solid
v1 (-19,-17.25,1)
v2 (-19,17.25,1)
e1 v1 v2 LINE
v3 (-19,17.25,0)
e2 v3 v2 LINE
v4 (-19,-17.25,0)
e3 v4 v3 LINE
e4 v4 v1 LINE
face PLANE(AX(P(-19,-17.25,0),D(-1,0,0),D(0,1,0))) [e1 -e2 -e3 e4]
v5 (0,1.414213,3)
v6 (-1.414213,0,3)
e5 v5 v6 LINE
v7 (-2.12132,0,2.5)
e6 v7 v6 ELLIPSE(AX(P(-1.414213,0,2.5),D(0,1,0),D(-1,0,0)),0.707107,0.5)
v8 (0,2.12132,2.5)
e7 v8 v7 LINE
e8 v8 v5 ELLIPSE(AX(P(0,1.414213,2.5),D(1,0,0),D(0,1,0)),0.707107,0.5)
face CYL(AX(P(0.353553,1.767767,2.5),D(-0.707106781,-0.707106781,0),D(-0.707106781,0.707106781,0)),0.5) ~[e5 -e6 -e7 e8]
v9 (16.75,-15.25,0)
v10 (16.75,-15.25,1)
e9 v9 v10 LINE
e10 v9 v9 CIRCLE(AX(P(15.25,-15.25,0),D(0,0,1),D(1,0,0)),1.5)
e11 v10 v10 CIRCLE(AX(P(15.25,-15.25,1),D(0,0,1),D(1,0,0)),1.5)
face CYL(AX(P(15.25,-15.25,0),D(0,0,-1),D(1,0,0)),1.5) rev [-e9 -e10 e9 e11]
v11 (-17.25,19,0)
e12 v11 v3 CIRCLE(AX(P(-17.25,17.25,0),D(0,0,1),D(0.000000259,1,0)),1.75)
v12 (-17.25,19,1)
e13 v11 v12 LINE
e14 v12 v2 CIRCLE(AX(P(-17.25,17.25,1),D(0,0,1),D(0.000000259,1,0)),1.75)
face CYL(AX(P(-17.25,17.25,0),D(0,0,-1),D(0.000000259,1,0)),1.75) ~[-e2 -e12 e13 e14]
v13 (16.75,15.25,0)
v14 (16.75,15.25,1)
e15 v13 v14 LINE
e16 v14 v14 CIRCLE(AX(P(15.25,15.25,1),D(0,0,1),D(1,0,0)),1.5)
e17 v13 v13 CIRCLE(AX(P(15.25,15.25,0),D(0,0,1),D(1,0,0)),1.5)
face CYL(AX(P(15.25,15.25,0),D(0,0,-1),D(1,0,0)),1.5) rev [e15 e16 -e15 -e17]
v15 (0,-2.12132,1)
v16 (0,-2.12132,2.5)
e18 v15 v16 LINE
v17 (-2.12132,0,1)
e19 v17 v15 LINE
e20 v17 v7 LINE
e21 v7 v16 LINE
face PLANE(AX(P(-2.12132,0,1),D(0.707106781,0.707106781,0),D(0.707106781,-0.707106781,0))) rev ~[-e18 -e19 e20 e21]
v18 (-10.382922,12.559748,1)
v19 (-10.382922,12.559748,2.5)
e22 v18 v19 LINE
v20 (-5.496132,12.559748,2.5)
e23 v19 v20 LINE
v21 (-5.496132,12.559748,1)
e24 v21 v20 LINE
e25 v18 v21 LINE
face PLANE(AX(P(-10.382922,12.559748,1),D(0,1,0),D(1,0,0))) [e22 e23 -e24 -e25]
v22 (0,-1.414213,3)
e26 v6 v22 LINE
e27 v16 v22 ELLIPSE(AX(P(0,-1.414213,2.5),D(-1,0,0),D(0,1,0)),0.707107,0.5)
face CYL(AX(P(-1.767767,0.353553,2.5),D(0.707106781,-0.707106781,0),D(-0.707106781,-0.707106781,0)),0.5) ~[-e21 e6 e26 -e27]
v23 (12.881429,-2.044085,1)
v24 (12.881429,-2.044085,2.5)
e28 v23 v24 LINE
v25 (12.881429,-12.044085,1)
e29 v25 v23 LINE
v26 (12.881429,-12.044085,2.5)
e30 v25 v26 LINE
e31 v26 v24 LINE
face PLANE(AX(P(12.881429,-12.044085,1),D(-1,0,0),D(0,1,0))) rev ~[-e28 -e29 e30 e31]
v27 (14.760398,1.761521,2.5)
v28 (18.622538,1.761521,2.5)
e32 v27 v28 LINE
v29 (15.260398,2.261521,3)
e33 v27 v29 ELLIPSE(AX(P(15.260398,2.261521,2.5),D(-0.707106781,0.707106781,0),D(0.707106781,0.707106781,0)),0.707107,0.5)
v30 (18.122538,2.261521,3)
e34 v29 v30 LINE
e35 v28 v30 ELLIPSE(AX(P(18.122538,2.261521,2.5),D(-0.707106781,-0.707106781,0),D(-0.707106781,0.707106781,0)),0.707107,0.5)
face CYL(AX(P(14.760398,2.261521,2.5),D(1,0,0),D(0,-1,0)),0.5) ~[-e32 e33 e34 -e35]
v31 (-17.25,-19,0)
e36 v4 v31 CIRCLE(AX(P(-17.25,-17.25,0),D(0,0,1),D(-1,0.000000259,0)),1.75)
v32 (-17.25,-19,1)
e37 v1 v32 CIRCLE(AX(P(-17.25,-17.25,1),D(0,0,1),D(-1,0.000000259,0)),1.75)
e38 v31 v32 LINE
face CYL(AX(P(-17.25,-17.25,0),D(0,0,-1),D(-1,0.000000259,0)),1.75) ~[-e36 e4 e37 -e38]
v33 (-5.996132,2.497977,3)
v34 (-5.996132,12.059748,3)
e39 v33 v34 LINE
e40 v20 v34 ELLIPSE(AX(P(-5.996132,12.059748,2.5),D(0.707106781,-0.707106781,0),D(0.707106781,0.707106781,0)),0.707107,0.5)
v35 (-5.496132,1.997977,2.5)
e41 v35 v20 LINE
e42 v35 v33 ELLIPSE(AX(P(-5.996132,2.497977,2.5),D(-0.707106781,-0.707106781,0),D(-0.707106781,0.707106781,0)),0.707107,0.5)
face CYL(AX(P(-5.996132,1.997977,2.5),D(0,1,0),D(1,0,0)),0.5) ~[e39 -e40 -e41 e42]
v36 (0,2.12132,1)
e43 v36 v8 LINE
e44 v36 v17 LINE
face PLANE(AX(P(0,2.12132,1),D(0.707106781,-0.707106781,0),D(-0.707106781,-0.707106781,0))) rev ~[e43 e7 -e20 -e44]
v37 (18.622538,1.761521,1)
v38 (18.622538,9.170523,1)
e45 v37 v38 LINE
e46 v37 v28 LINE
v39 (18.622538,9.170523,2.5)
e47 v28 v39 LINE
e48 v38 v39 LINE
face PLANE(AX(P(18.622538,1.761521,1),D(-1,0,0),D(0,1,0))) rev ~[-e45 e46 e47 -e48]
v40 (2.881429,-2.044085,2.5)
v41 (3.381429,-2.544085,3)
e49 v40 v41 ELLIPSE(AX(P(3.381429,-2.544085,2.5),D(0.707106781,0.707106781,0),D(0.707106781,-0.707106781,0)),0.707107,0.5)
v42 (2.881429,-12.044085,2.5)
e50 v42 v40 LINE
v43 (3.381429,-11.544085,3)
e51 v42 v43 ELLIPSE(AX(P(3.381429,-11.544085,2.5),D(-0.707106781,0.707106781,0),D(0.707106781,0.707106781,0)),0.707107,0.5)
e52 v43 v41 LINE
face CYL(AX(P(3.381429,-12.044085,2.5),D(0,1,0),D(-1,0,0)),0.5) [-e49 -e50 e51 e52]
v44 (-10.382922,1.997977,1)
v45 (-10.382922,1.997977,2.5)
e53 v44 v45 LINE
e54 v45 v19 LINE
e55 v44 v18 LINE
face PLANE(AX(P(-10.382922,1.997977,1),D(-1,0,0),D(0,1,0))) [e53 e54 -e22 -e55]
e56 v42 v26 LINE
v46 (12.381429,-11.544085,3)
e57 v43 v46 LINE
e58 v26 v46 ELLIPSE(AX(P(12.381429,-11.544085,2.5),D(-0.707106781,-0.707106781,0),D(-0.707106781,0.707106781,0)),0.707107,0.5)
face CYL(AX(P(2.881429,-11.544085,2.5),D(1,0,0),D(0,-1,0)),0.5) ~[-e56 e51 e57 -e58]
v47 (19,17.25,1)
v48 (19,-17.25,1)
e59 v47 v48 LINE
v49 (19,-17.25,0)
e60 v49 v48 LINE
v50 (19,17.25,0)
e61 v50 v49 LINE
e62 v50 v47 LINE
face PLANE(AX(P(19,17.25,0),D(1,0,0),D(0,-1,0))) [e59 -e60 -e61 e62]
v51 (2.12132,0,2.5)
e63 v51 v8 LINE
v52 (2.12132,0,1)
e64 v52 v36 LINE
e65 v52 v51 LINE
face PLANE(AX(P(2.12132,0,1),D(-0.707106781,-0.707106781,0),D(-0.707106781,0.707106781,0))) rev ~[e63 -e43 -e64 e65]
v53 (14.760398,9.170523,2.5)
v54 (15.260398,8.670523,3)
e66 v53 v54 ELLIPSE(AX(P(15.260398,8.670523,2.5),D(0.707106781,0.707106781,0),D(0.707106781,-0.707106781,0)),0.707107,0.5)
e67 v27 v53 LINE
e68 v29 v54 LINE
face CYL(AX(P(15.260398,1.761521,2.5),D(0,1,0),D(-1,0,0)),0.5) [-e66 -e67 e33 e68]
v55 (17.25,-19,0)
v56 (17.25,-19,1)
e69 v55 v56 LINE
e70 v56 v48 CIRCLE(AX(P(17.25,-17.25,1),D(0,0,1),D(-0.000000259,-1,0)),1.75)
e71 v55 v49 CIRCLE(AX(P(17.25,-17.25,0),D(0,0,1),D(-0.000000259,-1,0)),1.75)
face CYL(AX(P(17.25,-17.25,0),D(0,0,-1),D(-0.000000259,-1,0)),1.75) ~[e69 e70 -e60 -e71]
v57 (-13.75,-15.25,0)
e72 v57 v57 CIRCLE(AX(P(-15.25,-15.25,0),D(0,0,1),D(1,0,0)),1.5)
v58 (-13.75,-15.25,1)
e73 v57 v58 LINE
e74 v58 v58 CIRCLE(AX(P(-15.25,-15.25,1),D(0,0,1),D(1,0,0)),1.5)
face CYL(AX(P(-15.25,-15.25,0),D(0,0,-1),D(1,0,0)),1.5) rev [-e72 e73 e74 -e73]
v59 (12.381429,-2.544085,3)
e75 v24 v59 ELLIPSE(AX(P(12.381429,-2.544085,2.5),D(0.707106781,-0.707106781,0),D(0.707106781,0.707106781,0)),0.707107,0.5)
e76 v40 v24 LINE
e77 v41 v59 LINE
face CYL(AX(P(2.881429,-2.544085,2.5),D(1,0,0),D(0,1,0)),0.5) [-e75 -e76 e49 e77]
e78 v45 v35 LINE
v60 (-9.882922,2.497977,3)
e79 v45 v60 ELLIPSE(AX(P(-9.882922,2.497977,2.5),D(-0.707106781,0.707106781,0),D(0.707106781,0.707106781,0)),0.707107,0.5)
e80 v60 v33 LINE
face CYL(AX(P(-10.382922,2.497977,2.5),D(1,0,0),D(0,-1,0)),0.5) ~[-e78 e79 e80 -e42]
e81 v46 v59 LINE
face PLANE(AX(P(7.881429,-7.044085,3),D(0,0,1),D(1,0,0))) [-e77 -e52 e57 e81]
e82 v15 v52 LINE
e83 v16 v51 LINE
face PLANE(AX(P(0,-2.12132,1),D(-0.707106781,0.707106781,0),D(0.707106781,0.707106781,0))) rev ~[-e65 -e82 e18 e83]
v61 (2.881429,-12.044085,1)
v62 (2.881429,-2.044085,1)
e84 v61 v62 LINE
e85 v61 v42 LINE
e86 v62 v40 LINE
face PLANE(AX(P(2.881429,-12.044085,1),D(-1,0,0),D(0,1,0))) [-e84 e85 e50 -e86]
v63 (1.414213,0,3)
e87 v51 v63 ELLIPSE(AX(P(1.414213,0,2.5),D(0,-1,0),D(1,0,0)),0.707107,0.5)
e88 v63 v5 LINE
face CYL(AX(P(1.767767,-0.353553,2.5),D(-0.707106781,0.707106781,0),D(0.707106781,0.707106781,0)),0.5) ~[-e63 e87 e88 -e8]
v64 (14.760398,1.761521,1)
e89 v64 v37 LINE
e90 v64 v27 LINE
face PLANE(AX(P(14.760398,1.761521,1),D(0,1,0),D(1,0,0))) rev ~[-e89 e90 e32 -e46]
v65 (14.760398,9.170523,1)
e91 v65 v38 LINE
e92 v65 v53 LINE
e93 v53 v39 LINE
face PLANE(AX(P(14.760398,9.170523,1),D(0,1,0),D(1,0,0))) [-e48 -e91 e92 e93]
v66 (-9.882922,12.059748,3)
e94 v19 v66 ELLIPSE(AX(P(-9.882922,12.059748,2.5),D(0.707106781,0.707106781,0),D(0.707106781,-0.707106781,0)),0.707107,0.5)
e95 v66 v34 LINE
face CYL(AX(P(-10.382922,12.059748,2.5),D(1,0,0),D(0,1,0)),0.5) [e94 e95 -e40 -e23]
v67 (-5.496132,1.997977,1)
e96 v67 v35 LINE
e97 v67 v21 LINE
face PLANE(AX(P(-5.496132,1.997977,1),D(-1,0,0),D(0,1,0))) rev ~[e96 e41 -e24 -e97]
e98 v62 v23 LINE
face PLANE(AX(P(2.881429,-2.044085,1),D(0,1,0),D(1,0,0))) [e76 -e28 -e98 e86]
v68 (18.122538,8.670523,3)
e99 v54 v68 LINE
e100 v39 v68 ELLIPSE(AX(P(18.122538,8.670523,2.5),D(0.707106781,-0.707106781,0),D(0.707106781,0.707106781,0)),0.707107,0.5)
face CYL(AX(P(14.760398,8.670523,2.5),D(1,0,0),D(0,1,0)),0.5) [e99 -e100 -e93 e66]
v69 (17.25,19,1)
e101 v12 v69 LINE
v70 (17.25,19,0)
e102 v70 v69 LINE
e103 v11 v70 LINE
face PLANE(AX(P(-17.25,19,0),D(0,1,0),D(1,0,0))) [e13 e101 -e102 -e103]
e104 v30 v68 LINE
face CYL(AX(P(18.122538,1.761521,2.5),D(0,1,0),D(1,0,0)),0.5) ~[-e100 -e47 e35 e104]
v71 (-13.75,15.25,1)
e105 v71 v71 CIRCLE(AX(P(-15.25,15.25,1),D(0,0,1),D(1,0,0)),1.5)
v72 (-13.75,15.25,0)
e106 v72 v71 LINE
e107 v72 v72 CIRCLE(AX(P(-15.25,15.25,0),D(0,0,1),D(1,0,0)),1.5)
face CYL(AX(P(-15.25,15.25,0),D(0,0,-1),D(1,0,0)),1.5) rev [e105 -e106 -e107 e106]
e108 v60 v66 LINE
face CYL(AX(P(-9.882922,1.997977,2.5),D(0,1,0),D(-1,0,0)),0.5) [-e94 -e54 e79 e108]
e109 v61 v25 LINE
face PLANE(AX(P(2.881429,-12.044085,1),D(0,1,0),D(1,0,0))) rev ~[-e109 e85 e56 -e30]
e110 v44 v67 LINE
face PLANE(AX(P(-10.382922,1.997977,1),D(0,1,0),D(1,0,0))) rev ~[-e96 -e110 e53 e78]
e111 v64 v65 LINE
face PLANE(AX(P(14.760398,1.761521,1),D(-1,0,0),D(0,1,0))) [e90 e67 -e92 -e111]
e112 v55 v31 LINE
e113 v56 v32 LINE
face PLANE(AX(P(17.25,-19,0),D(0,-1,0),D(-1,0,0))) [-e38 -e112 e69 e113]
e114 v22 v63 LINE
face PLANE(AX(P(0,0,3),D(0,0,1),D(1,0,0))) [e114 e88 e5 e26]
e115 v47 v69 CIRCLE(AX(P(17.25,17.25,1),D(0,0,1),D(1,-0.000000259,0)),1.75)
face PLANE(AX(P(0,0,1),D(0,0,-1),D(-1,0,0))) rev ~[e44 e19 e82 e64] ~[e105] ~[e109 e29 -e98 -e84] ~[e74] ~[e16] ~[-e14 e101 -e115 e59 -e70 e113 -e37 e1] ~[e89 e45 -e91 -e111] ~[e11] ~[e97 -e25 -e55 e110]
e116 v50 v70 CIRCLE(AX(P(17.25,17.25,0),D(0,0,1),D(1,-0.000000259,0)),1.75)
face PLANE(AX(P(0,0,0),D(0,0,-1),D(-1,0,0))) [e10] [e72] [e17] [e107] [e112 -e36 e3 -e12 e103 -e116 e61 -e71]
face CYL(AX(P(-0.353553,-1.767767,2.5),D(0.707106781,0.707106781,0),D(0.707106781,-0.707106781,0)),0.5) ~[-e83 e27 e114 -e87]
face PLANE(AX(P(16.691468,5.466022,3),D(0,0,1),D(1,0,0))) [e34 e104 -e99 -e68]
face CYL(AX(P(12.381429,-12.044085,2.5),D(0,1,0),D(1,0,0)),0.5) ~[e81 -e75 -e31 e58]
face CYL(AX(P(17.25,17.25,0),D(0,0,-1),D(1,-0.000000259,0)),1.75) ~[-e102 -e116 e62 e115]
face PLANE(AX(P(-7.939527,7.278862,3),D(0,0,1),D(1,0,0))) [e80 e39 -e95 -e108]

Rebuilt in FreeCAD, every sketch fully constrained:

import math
import FreeCAD as App
import Part
import Sketcher

V = App.Vector
Q = App.Units.Quantity


def edges_at(feature, points):
    """Names of the edges that pass closest to the given points."""
    edges = feature.Shape.Edges
    near = lambda p: min(range(len(edges)), key=lambda i: edges[i].distToShape(Part.Vertex(*p))[0])
    return sorted({f"Edge{near(p) + 1}" for p in points})


def add_polygon(sketch, points):
    """Adds a closed chain of lines whose ends are joined by coincident constraints."""
    first, n = sketch.GeometryCount, len(points)
    for a, b in zip(points, points[1:] + points[:1]):
        sketch.addGeometry(Part.LineSegment(App.Vector(*a, 0), App.Vector(*b, 0)), False)
    for i in range(n):
        sketch.addConstraint(Sketcher.Constraint("Coincident", first + i, 2, first + (i + 1) % n, 1))

doc = App.newDocument("Part")
body = doc.addObject("PartDesign::Body", "Body")

sketch1 = doc.addObject("Sketcher::SketchObject", "Sketch")
body.addObject(sketch1)
sketch1.AttachmentSupport = (doc.XY_Plane, [""])
sketch1.MapMode = "FlatFace"
sketch1.addGeometry(Part.LineSegment(V(17.2, 19, 0), V(-17.2, 19, 0)), False)
sketch1.addGeometry(Part.ArcOfCircle(Part.Circle(V(-17.3, 17.3, 0), V(0, 0, 1), 1.7), math.radians(90), math.radians(180)), False)
sketch1.addGeometry(Part.LineSegment(V(-19, 17.2, 0), V(-19, -17.2, 0)), False)
sketch1.addGeometry(Part.ArcOfCircle(Part.Circle(V(-17.3, -17.3, 0), V(0, 0, 1), 1.7), math.radians(180), math.radians(270)), False)
sketch1.addGeometry(Part.LineSegment(V(-17.2, -19, 0), V(17.2, -19, 0)), False)
sketch1.addGeometry(Part.ArcOfCircle(Part.Circle(V(17.3, -17.3, 0), V(0, 0, 1), 1.7), math.radians(-90), math.radians(0)), False)
sketch1.addGeometry(Part.LineSegment(V(19, -17.2, 0), V(19, 17.2, 0)), False)
sketch1.addGeometry(Part.ArcOfCircle(Part.Circle(V(17.3, 17.3, 0), V(0, 0, 1), 1.7), math.radians(0), math.radians(90)), False)
sketch1.addGeometry(Part.Circle(V(15.2, -15.2, 0), V(0, 0, 1), 1.5), False)
sketch1.addGeometry(Part.Circle(V(-15.2, -15.2, 0), V(0, 0, 1), 1.5), False)
sketch1.addGeometry(Part.Circle(V(15.2, 15.2, 0), V(0, 0, 1), 1.5), False)
sketch1.addGeometry(Part.Circle(V(-15.2, 15.2, 0), V(0, 0, 1), 1.5), False)
sketch1.addConstraint(Sketcher.Constraint("Tangent", 0, 2, 1, 1))
sketch1.addConstraint(Sketcher.Constraint("Tangent", 1, 2, 2, 1))
sketch1.addConstraint(Sketcher.Constraint("Tangent", 2, 2, 3, 1))
sketch1.addConstraint(Sketcher.Constraint("Tangent", 3, 2, 4, 1))
sketch1.addConstraint(Sketcher.Constraint("Tangent", 4, 2, 5, 1))
sketch1.addConstraint(Sketcher.Constraint("Tangent", 5, 2, 6, 1))
sketch1.addConstraint(Sketcher.Constraint("Tangent", 6, 2, 7, 1))
sketch1.addConstraint(Sketcher.Constraint("Tangent", 7, 2, 0, 1))
sketch1.addConstraint(Sketcher.Constraint("Horizontal", 0))
sketch1.addConstraint(Sketcher.Constraint("Vertical", 2))
sketch1.addConstraint(Sketcher.Constraint("Horizontal", 4))
sketch1.addConstraint(Sketcher.Constraint("Vertical", 6))
sketch1.addConstraint(Sketcher.Constraint("Equal", 1, 3))
sketch1.addConstraint(Sketcher.Constraint("Equal", 3, 5))
sketch1.addConstraint(Sketcher.Constraint("Equal", 5, 7))
sketch1.addConstraint(Sketcher.Constraint("Equal", 8, 9))
sketch1.addConstraint(Sketcher.Constraint("Equal", 9, 10))
sketch1.addConstraint(Sketcher.Constraint("Equal", 10, 11))
sketch1.addConstraint(Sketcher.Constraint("Symmetric", 1, 3, 5, 3, -1, 1))
sketch1.addConstraint(Sketcher.Constraint("Symmetric", 9, 3, 10, 3, -1, 1))
sketch1.addConstraint(Sketcher.Constraint("Symmetric", 8, 3, 11, 3, -1, 1))
sketch1.addConstraint(Sketcher.Constraint("Symmetric", 8, 3, 9, 3, -2))
sketch1.addConstraint(Sketcher.Constraint("Equal", 4, 2))
sketch1.addConstraint(Sketcher.Constraint("Diameter", 8, Q("3 mm")))
sketch1.addConstraint(Sketcher.Constraint("Radius", 1, Q("1.75 mm")))
sketch1.addConstraint(Sketcher.Constraint("DistanceX", 0, 2, 0, 1, Q("34.5 mm")))
sketch1.addConstraint(Sketcher.Constraint("DistanceX", 8, 3, 5, 3, Q("2 mm")))
sketch1.addConstraint(Sketcher.Constraint("DistanceY", 5, 3, 8, 3, Q("2 mm")))
pad1 = doc.addObject("PartDesign::Pad", "Pad")
body.addObject(pad1)
pad1.Profile = sketch1
pad1.Length = 1

sketch2 = doc.addObject("Sketcher::SketchObject", "Sketch001")
body.addObject(sketch2)
sketch2.AttachmentSupport = (doc.XY_Plane, [""])
sketch2.MapMode = "FlatFace"
sketch2.AttachmentOffset = App.Placement(V(0, 0, 1), App.Rotation())
add_polygon(sketch2, [(2.9, -2), (2.9, -12), (12.9, -12), (12.9, -2)])
add_polygon(sketch2, [(0, -2.1), (2.1, 0), (0, 2.1), (-2.1, 0)])
add_polygon(sketch2, [(-10.4, 12.6), (-10.4, 2), (-5.5, 2), (-5.5, 12.6)])
add_polygon(sketch2, [(14.8, 9.2), (14.8, 1.8), (18.6, 1.8), (18.6, 9.2)])
sketch2.addConstraint(Sketcher.Constraint("Vertical", 0))
sketch2.addConstraint(Sketcher.Constraint("Horizontal", 1))
sketch2.addConstraint(Sketcher.Constraint("Vertical", 2))
sketch2.addConstraint(Sketcher.Constraint("Horizontal", 3))
sketch2.addConstraint(Sketcher.Constraint("Vertical", 8))
sketch2.addConstraint(Sketcher.Constraint("Horizontal", 9))
sketch2.addConstraint(Sketcher.Constraint("Vertical", 10))
sketch2.addConstraint(Sketcher.Constraint("Horizontal", 11))
sketch2.addConstraint(Sketcher.Constraint("Vertical", 12))
sketch2.addConstraint(Sketcher.Constraint("Horizontal", 13))
sketch2.addConstraint(Sketcher.Constraint("Vertical", 14))
sketch2.addConstraint(Sketcher.Constraint("Horizontal", 15))
sketch2.addConstraint(Sketcher.Constraint("Symmetric", 4, 2, 6, 2, -1, 1))
sketch2.addConstraint(Sketcher.Constraint("Symmetric", 5, 2, 7, 2, -1, 1))
sketch2.addConstraint(Sketcher.Constraint("PointOnObject", 4, 2, -1))
sketch2.addConstraint(Sketcher.Constraint("PointOnObject", 5, 2, -2))
sketch2.addConstraint(Sketcher.Constraint("Perpendicular", 4, 5))
sketch2.addConstraint(Sketcher.Constraint("Equal", 3, 0))
sketch2.addConstraint(Sketcher.Constraint("DistanceX", 1, 1, 1, 2, Q("10 mm")))
sketch2.addConstraint(Sketcher.Constraint("Distance", 4, Q("3 mm")))
sketch2.addConstraint(Sketcher.Constraint("DistanceX", 9, 1, 9, 2, Q("4.88679 mm")))
sketch2.addConstraint(Sketcher.Constraint("DistanceX", 13, 1, 13, 2, Q("3.86214 mm")))
sketch2.addConstraint(Sketcher.Constraint("DistanceY", 8, 2, 8, 1, Q("10.561771 mm")))
sketch2.addConstraint(Sketcher.Constraint("DistanceY", 12, 2, 5, 2, Q("0.359799 mm")))
sketch2.addConstraint(Sketcher.Constraint("DistanceY", 12, 2, 12, 1, Q("7.409003 mm")))
sketch2.addConstraint(Sketcher.Constraint("DistanceX", -1, 1, 0, 2, Q("2.881429 mm")))
sketch2.addConstraint(Sketcher.Constraint("DistanceX", 8, 2, 3, 2, Q("13.264351 mm")))
sketch2.addConstraint(Sketcher.Constraint("DistanceY", 3, 2, 8, 2, Q("4.042061 mm")))
sketch2.addConstraint(Sketcher.Constraint("DistanceX", 2, 2, 12, 2, Q("1.878969 mm")))
sketch2.addConstraint(Sketcher.Constraint("DistanceY", 2, 2, 14, 2, Q("11.214609 mm")))
pad2 = doc.addObject("PartDesign::Pad", "Pad001")
body.addObject(pad2)
pad2.Profile = sketch2
pad2.Length = 2
doc.recompute()

fillet = doc.addObject("PartDesign::Fillet", "Fillet")
body.addObject(fillet)
fillet.Base = (pad2, edges_at(pad2, [
    (1.061, -1.061, 3),
    (1.061, 1.061, 3),
    (-1.061, 1.061, 3),
    (-1.061, -1.061, 3),
    (7.881, -2.044, 3),
    (12.881, -7.044, 3),
    (7.881, -12.044, 3),
    (2.881, -7.044, 3),
    (-7.94, 12.56, 3),
    (-5.496, 7.279, 3),
    (-7.94, 1.998, 3),
    (-10.383, 7.279, 3),
    (16.691, 9.171, 3),
    (18.623, 5.466, 3),
    (16.691, 1.762, 3),
    (14.76, 5.466, 3),
]))
fillet.Radius = 0.5

doc.recompute()
